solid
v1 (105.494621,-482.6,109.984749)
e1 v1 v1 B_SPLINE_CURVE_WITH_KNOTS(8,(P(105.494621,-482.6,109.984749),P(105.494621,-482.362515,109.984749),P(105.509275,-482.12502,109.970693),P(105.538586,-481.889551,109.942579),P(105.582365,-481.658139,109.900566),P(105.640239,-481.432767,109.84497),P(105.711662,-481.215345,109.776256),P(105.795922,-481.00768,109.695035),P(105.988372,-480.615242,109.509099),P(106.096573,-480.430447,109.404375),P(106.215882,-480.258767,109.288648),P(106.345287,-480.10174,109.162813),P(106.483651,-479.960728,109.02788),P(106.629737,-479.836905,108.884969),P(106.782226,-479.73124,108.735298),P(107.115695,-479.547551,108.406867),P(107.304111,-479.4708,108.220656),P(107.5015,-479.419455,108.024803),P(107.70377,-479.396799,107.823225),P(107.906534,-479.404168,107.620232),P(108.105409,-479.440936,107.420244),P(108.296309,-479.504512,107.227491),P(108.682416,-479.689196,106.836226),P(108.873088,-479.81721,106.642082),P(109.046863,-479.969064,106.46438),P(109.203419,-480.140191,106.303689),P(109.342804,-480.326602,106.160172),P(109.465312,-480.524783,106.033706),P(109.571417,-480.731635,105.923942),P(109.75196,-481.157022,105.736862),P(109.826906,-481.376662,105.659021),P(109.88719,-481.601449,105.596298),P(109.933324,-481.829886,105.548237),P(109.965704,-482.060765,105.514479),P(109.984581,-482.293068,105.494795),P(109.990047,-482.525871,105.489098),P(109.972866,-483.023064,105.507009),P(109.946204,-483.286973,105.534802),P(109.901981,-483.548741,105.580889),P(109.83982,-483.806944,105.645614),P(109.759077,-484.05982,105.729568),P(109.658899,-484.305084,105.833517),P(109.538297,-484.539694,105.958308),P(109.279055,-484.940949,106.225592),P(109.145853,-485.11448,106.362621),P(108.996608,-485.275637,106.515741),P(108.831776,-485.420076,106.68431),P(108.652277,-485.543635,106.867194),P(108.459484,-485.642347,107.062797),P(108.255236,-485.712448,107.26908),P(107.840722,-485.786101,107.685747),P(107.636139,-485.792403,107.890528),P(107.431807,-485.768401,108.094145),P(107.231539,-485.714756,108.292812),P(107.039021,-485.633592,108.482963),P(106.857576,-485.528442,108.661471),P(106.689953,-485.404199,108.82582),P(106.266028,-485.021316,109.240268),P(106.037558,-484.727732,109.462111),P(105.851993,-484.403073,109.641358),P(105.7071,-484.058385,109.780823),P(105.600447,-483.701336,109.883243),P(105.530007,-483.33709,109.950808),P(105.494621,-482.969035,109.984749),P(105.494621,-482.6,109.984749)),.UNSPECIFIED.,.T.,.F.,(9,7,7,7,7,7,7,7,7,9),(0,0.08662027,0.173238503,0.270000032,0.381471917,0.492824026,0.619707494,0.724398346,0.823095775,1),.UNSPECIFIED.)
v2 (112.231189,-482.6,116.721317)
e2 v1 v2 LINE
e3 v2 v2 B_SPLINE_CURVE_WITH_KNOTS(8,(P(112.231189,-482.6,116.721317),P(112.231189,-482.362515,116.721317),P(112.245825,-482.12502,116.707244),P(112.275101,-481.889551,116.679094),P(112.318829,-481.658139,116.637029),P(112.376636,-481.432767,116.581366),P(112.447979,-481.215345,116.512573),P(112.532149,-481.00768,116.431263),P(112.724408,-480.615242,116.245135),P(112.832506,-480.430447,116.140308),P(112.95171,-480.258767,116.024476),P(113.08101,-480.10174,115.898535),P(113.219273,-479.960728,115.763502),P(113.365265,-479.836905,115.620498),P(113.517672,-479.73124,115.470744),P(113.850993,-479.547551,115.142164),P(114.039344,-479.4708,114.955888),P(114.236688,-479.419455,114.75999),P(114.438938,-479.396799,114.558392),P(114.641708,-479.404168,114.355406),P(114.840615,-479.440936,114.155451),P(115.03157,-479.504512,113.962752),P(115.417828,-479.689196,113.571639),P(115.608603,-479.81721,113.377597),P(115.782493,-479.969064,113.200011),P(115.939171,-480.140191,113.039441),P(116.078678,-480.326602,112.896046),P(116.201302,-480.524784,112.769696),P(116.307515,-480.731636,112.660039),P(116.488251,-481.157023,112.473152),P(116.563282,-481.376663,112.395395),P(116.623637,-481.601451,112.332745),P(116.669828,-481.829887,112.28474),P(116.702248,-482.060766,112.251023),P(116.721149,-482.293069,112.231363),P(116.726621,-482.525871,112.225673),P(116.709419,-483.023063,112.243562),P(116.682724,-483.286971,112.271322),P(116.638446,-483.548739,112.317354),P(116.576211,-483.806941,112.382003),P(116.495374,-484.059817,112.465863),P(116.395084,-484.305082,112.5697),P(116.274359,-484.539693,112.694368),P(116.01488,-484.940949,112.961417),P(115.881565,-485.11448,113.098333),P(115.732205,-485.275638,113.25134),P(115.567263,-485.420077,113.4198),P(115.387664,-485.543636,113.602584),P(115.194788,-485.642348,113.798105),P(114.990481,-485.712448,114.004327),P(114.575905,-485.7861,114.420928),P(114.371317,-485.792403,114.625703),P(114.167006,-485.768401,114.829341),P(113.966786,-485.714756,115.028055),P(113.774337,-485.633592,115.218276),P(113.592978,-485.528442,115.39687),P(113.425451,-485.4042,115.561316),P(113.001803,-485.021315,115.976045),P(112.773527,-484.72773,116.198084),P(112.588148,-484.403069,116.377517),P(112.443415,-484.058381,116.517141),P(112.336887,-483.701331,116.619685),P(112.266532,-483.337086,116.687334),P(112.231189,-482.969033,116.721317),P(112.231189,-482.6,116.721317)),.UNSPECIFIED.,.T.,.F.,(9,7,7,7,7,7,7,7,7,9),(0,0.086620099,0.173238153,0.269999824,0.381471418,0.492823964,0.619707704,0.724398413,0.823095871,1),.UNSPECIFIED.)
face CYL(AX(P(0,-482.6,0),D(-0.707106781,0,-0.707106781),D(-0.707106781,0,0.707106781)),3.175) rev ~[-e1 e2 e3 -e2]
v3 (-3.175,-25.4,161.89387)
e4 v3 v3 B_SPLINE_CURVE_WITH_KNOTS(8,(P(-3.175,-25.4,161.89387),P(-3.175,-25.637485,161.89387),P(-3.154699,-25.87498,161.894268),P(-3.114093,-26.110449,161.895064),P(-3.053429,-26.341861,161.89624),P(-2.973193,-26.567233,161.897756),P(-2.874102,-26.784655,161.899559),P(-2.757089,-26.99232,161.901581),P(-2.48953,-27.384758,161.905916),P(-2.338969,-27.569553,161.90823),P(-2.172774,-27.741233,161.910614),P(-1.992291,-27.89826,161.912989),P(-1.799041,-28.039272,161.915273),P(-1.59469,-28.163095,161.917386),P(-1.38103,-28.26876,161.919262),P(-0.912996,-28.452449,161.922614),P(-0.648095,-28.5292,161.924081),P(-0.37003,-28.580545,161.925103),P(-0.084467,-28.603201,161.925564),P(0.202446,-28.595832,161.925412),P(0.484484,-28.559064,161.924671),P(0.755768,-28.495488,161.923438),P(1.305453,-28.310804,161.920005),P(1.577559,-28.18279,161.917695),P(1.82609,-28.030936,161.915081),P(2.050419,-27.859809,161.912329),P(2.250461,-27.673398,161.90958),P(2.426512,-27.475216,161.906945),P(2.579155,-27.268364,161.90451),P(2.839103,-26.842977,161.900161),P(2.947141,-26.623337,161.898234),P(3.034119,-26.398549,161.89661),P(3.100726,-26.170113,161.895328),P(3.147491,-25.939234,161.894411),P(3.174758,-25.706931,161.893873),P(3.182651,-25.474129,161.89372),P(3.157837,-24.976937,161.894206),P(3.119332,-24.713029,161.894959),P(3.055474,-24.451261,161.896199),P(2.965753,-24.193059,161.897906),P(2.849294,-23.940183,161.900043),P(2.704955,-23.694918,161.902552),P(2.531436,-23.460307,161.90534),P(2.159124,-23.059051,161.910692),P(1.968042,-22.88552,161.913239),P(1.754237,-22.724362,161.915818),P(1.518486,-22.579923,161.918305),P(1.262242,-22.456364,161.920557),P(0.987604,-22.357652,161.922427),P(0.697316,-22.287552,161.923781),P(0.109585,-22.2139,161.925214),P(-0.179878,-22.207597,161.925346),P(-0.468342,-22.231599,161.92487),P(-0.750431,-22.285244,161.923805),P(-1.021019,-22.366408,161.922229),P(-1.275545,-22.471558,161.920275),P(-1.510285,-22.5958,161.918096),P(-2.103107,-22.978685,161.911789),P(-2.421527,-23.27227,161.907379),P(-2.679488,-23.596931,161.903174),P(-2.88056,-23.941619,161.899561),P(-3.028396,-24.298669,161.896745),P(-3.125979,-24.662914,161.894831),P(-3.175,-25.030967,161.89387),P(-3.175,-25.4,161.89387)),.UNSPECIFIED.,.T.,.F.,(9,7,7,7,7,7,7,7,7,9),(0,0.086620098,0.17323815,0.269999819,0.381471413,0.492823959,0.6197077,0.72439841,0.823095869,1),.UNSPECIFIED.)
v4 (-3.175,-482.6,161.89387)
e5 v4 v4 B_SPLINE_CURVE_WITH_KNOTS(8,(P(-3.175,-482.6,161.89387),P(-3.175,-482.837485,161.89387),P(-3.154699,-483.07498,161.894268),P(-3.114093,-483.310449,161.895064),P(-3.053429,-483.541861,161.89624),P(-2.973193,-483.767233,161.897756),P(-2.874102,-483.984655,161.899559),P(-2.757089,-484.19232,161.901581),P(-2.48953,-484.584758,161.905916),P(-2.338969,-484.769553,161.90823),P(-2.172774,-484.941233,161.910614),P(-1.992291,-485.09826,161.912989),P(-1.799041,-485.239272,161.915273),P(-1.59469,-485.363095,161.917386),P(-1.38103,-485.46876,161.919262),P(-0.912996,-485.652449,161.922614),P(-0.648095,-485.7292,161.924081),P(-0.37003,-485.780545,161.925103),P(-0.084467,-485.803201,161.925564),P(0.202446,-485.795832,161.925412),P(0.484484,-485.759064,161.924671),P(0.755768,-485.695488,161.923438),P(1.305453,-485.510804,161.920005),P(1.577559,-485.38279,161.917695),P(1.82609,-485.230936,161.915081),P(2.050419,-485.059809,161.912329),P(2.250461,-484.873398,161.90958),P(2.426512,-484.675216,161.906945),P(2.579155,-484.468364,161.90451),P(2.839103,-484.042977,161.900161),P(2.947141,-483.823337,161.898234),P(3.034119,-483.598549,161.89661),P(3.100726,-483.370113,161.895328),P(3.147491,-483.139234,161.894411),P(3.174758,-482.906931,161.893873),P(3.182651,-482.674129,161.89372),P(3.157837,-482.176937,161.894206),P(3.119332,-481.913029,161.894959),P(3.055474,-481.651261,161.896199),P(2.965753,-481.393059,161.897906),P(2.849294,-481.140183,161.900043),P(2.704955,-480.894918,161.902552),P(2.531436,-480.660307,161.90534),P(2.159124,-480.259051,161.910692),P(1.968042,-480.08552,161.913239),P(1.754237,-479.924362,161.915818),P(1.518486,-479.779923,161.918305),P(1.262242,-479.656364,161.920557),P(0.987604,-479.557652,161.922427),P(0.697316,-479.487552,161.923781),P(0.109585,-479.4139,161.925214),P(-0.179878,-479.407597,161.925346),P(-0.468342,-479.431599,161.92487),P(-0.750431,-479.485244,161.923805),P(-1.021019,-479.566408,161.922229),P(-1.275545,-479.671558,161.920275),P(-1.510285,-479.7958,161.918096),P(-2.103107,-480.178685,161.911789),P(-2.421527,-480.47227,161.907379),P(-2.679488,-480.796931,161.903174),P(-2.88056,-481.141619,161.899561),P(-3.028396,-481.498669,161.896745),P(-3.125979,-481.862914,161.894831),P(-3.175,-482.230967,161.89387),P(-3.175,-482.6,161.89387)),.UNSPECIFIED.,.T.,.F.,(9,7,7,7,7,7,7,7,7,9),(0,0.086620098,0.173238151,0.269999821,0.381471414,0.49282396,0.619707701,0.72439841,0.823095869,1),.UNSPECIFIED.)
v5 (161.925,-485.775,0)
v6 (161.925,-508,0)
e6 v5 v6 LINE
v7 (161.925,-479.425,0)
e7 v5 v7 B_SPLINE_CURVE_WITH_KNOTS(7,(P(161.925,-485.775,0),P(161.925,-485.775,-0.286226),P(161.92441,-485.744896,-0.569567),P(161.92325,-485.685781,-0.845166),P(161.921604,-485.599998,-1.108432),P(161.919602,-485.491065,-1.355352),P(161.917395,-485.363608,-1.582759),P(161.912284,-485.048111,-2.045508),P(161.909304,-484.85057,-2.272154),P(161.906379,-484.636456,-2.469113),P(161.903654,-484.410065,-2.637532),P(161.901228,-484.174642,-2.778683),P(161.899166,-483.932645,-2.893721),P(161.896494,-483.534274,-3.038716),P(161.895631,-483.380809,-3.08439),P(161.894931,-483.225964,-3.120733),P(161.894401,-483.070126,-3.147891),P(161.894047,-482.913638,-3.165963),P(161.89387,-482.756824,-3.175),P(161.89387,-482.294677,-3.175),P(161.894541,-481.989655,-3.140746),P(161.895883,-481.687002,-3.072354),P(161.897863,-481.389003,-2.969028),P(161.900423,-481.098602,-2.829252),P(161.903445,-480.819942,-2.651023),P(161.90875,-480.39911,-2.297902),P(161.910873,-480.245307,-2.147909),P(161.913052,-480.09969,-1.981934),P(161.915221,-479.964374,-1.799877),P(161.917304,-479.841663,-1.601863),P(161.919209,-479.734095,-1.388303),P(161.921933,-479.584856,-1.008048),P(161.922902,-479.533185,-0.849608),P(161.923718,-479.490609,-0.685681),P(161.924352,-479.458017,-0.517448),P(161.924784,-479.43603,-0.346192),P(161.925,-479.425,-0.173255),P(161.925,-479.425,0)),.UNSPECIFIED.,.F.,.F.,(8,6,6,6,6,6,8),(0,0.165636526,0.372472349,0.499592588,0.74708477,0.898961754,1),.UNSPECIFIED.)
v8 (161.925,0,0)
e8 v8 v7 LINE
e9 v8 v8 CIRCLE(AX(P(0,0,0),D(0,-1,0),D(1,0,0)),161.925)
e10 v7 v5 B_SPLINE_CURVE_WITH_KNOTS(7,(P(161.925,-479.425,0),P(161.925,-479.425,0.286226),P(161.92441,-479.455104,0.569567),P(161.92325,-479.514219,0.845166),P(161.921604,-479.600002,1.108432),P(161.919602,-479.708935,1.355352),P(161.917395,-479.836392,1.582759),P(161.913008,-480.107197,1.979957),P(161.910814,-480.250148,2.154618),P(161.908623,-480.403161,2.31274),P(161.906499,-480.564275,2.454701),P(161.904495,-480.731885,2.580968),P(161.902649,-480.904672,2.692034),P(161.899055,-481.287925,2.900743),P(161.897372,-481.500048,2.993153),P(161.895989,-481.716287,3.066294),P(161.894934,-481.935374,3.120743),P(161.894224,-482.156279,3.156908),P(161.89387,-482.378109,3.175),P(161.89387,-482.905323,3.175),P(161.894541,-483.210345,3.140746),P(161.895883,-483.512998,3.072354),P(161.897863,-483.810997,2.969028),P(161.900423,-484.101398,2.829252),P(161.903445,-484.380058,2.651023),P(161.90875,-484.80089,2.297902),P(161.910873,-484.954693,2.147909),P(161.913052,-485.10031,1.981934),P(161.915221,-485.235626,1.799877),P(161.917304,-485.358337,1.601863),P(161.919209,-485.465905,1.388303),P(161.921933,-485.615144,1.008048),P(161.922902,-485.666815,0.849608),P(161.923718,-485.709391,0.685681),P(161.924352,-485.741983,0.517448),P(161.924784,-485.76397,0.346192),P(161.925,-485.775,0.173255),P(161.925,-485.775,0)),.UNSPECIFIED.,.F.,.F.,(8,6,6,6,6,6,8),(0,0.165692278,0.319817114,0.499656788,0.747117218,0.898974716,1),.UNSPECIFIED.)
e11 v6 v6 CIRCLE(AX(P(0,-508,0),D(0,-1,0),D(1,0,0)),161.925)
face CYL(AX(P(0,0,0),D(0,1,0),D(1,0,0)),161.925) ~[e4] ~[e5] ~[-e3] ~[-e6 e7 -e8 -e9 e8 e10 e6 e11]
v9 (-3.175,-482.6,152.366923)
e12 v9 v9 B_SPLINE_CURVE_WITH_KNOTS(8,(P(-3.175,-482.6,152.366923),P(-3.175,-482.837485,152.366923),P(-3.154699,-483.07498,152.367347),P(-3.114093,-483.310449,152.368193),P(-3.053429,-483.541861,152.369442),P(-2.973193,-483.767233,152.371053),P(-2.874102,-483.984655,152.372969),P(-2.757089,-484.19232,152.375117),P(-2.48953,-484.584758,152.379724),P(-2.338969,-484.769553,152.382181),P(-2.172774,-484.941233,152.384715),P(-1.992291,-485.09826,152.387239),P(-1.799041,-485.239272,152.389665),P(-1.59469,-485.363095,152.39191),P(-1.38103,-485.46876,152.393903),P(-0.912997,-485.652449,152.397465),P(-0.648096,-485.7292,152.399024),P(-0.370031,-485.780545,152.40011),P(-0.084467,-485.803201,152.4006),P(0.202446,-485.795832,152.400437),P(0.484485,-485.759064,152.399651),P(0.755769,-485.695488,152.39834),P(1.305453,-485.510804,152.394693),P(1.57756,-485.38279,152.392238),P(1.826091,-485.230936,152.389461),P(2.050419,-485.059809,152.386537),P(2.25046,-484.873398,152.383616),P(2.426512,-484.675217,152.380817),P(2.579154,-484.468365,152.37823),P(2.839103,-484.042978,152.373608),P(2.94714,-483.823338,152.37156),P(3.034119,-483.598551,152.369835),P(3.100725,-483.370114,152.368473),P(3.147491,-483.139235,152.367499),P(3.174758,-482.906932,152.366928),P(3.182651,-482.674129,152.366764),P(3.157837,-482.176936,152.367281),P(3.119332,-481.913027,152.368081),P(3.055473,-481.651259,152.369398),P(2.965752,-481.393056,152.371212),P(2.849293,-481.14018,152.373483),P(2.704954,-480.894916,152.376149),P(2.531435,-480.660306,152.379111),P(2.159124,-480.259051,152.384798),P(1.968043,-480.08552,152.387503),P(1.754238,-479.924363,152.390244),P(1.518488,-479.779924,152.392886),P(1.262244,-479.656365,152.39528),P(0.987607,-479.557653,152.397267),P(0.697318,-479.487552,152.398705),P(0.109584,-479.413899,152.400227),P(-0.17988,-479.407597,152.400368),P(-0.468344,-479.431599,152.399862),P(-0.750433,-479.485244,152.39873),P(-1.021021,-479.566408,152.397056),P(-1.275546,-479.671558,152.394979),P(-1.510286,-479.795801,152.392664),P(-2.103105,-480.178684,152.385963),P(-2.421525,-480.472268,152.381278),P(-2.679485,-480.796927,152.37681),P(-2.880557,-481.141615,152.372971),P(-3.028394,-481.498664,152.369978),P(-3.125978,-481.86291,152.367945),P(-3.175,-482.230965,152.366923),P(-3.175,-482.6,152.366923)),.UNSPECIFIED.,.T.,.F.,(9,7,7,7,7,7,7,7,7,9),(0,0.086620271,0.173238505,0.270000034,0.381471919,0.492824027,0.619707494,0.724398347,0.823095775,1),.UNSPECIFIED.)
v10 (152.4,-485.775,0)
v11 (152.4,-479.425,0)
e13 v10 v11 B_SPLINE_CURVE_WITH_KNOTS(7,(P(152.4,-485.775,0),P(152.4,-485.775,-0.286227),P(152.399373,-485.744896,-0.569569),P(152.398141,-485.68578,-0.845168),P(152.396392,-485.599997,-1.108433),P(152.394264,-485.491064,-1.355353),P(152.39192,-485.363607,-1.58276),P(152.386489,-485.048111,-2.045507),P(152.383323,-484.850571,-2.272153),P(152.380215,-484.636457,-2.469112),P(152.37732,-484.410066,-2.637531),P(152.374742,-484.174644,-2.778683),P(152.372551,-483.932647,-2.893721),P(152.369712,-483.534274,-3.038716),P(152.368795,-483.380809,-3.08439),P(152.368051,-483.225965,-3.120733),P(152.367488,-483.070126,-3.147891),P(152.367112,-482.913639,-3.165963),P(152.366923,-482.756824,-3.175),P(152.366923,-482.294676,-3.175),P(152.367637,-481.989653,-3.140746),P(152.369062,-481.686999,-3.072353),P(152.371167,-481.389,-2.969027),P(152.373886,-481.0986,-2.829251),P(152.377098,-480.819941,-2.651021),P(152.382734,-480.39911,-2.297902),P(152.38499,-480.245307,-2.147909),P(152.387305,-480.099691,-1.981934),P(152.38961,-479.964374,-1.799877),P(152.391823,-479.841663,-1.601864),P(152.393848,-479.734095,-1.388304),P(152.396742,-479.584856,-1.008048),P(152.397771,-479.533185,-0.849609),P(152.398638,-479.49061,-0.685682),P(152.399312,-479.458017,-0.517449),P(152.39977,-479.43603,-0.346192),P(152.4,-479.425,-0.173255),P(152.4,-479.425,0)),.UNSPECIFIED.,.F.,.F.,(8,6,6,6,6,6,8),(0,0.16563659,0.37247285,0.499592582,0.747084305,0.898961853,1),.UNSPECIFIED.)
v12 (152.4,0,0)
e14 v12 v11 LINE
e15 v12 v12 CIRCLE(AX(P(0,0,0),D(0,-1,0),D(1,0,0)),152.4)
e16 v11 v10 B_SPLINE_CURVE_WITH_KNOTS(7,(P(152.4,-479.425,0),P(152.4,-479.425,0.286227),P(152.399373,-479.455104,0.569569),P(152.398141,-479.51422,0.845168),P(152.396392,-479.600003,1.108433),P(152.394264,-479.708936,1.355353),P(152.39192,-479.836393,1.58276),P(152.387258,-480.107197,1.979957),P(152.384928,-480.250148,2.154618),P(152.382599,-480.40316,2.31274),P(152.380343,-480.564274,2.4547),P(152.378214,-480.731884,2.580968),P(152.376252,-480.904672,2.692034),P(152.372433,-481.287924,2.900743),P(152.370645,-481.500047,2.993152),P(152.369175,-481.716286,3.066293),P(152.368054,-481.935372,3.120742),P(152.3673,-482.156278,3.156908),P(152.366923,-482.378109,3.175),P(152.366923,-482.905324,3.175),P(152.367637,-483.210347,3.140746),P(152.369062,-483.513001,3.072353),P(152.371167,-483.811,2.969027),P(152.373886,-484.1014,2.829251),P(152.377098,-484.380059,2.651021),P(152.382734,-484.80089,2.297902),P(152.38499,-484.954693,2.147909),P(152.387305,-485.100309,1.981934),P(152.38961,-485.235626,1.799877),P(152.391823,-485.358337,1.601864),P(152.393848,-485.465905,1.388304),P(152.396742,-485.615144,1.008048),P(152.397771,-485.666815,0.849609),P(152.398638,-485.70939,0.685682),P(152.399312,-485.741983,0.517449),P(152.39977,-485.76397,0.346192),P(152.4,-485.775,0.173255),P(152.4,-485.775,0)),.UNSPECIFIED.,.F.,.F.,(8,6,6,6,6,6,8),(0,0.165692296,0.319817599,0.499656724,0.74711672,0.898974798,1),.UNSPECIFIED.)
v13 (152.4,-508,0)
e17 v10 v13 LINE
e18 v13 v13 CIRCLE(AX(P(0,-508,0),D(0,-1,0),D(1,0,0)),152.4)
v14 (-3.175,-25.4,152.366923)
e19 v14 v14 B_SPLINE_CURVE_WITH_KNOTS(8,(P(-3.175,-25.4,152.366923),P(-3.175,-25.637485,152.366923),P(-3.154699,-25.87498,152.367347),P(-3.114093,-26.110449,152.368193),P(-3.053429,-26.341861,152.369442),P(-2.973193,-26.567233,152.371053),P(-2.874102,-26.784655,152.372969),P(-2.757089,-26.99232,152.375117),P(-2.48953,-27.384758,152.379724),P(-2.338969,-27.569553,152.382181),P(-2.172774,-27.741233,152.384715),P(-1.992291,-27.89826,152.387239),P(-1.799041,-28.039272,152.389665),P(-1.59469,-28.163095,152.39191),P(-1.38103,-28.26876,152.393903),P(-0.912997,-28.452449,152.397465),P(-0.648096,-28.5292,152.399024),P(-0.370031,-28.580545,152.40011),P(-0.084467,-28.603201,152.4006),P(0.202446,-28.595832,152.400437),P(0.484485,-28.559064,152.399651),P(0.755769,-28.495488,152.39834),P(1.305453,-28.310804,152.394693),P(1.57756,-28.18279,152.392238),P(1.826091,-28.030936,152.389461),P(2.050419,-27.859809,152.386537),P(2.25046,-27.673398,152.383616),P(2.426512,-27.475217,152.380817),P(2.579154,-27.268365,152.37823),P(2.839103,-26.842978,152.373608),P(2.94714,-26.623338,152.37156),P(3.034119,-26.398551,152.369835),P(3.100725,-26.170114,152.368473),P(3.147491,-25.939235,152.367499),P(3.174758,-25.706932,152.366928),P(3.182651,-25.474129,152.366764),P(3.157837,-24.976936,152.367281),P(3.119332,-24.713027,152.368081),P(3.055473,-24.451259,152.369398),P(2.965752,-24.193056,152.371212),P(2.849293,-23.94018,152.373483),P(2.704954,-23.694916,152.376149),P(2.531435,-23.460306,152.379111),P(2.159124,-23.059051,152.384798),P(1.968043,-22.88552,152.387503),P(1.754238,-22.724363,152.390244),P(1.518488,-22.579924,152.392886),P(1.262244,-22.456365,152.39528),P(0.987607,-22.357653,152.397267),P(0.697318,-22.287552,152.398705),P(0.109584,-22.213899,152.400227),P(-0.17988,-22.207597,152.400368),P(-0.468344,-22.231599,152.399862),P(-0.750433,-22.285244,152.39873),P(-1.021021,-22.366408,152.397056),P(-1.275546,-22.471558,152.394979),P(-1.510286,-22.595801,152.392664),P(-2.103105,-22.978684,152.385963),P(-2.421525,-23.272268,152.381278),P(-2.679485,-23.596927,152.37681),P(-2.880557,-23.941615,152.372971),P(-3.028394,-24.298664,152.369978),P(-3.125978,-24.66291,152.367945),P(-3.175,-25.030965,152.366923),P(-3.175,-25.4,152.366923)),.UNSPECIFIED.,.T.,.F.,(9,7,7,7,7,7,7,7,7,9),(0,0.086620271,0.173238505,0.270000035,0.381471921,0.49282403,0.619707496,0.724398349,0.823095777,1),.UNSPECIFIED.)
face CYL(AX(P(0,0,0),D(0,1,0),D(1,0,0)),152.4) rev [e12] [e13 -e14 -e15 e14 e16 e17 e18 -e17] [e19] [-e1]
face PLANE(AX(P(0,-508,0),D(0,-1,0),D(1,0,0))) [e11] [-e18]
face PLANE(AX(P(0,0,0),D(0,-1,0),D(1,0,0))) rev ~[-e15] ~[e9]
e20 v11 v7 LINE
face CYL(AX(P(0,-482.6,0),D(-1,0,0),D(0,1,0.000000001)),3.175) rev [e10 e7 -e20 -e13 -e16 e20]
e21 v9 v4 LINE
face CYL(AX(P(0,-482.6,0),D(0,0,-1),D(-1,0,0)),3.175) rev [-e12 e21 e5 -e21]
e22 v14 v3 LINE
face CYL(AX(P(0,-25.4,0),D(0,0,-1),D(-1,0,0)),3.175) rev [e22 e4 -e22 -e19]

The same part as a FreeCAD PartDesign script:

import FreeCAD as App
import Part
import Sketcher
from FreeCAD import Vector
Q = App.Units.Quantity

doc = App.newDocument("Part")
params = doc.addObject("Spreadsheet::Sheet", "Params")
for row, (alias, value) in enumerate([
    ("sketch1_diameter", "12 in"),
    ("sketch1_diameter2", "12.75 in"),
    ("pad1_length", "20 in"),
    ("sketch2_diameter", "0.25 in"),
    ("sketch3_diameter", "0.25 in"),
    ("sketch4_diameter", "0.25 in"),
], start=1):
    params.set(f"A{row}", alias)
    params.set(f"B{row}", "=" + value)
    params.setAlias(f"B{row}", alias)

body = doc.addObject("PartDesign::Body", "Body")

# Sketch on XZ plane
sketch1 = body.newObject("Sketcher::SketchObject", "Sketch")
sketch1.AttachmentSupport = (doc.getObject("XZ_Plane"), [""])
sketch1.MapMode = "FlatFace"
sketch1.addGeometry(Part.Circle(Vector(0, 0, 0), Vector(0, 0, 1), 162), False)
sketch1.addGeometry(Part.Circle(Vector(0, 0, 0), Vector(0, 0, 1), 152), False)
sketch1.addConstraint(Sketcher.Constraint("Coincident", 0, 3, -1, 1))
sketch1.addConstraint(Sketcher.Constraint("Coincident", 1, 3, -1, 1))
sketch1.addConstraint(Sketcher.Constraint("Diameter", 1, Q("12 in")))
sketch1.addConstraint(Sketcher.Constraint("Diameter", 0, Q("12.75 in")))
sketch1.setExpression("Constraints[2]", "Params.sketch1_diameter")
sketch1.setExpression("Constraints[3]", "Params.sketch1_diameter2")
pad1 = body.newObject("PartDesign::Pad", "Pad")
pad1.Profile = sketch1
pad1.setExpression("Length", "Params.pad1_length")

# Sketch on XY plane
sketch2 = body.newObject("Sketcher::SketchObject", "Sketch001")
sketch2.AttachmentSupport = (doc.getObject("XY_Plane"), [""])
sketch2.MapMode = "FlatFace"
sketch2.addGeometry(Part.Circle(Vector(0, -482.6, 0), Vector(0, 0, 1), 3.2), False)
sketch2.addGeometry(Part.Circle(Vector(0, -25.4, 0), Vector(0, 0, 1), 3.2), False)
sketch2.addConstraint(Sketcher.Constraint("Equal", 0, 1))
sketch2.addConstraint(Sketcher.Constraint("PointOnObject", 0, 3, -2))
sketch2.addConstraint(Sketcher.Constraint("PointOnObject", 1, 3, -2))
sketch2.addConstraint(Sketcher.Constraint("Diameter", 0, Q("0.25 in")))
sketch2.addConstraint(Sketcher.Constraint("DistanceY", 0, 3, -1, 1, Q("19 in")))
sketch2.addConstraint(Sketcher.Constraint("DistanceY", 1, 3, -1, 1, Q("1 in")))
sketch2.setExpression("Constraints[3]", "Params.sketch2_diameter")
pocket1 = body.newObject("PartDesign::Pocket", "Pocket")
pocket1.Profile = sketch2
pocket1.Type = "ThroughAll"
pocket1.Reversed = True

# Sketch on an angled plane
sketch3 = body.newObject("Sketcher::SketchObject", "Sketch002")
sketch3.Placement = App.Placement(Vector(0, 0, 0), App.Rotation(Vector(0, -1, 0), Vector(-0.707106781, 0, 0.707106781), Vector(-0.707106781, 0, -0.707106781), "ZXY"))
sketch3.addGeometry(Part.Circle(Vector(482.6, 0, 0), Vector(0, 0, 1), 3.2), False)
sketch3.addConstraint(Sketcher.Constraint("PointOnObject", 0, 3, -1))
sketch3.addConstraint(Sketcher.Constraint("Diameter", 0, Q("0.25 in")))
sketch3.addConstraint(Sketcher.Constraint("DistanceX", -1, 1, 0, 3, Q("19 in")))
sketch3.setExpression("Constraints[1]", "Params.sketch3_diameter")
pocket2 = body.newObject("PartDesign::Pocket", "Pocket001")
pocket2.Profile = sketch3
pocket2.Type = "ThroughAll"

# Sketch on YZ plane
sketch4 = body.newObject("Sketcher::SketchObject", "Sketch003")
sketch4.AttachmentSupport = (doc.getObject("YZ_Plane"), [""])
sketch4.MapMode = "FlatFace"
sketch4.addGeometry(Part.Circle(Vector(-482.6, 0, 0), Vector(0, 0, 1), 3.2), False)
sketch4.addConstraint(Sketcher.Constraint("PointOnObject", 0, 3, -1))
sketch4.addConstraint(Sketcher.Constraint("Diameter", 0, Q("0.25 in")))
sketch4.addConstraint(Sketcher.Constraint("DistanceX", 0, 3, -1, 1, Q("19 in")))
sketch4.setExpression("Constraints[1]", "Params.sketch4_diameter")
pocket3 = body.newObject("PartDesign::Pocket", "Pocket002")
pocket3.Profile = sketch4
pocket3.Type = "ThroughAll"
pocket3.Reversed = True

doc.recompute()
